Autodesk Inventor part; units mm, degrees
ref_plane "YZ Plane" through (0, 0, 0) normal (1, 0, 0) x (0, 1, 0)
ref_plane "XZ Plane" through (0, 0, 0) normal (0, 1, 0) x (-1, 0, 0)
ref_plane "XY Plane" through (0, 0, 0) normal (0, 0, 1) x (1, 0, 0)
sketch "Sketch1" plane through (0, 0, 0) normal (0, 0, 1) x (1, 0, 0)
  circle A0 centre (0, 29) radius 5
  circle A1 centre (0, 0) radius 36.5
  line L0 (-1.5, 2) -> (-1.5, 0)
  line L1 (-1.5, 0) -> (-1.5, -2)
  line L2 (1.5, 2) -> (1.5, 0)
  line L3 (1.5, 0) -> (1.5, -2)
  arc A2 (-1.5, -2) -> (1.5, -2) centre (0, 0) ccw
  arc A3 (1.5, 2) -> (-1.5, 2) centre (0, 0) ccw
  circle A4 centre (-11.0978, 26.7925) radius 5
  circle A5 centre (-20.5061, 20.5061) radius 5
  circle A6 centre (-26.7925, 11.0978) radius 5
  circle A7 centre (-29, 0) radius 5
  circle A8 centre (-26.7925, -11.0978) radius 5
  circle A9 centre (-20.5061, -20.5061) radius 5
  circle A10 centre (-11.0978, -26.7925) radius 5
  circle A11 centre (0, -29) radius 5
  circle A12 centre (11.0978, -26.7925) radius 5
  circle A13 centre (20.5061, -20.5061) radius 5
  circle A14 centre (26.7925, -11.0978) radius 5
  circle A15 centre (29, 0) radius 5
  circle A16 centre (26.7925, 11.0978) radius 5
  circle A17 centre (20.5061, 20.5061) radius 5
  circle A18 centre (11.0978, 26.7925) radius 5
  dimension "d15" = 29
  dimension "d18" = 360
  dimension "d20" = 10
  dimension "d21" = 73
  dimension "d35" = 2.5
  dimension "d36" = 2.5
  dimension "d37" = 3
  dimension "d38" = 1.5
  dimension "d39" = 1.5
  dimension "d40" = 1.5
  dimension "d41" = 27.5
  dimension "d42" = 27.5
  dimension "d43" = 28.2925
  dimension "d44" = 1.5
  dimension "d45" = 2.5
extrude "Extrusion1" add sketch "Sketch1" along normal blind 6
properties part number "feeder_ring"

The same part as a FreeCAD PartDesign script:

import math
import FreeCAD as App
import Part
import Sketcher

V = App.Vector
Q = App.Units.Quantity

doc = App.newDocument("Part")
body = doc.addObject("PartDesign::Body", "Body")

sketch1 = doc.addObject("Sketcher::SketchObject", "Sketch")
body.addObject(sketch1)
sketch1.AttachmentSupport = (doc.XY_Plane, [""])
sketch1.MapMode = "FlatFace"
sketch1.addGeometry([
    Part.Circle(V(0, 0, 0), V(0, 0, 1), 36.5),
    Part.Circle(V(-20.5, -20.5, 0), V(0, 0, 1), 5),
    Part.Circle(V(-11.1, -26.8, 0), V(0, 0, 1), 5),
    Part.Circle(V(-26.8, -11.1, 0), V(0, 0, 1), 5),
    Part.Circle(V(0, -29, 0), V(0, 0, 1), 5),
    Part.Circle(V(11.1, -26.8, 0), V(0, 0, 1), 5),
    Part.Circle(V(20.5, -20.5, 0), V(0, 0, 1), 5),
    Part.Circle(V(26.8, -11.1, 0), V(0, 0, 1), 5),
    Part.Circle(V(-29, 0, 0), V(0, 0, 1), 5),
    Part.Circle(V(-26.8, 11.1, 0), V(0, 0, 1), 5),
    Part.Circle(V(-20.5, 20.5, 0), V(0, 0, 1), 5),
    Part.Circle(V(-11.1, 26.8, 0), V(0, 0, 1), 5),
    Part.LineSegment(V(-1.5, -2, 0), V(-1.5, 2, 0)),
    Part.ArcOfCircle(Part.Circle(V(0, 0, 0), V(0, 0, 1), 2.5), math.radians(53), math.radians(127)),
    Part.LineSegment(V(1.5, 2, 0), V(1.5, -2, 0)),
    Part.ArcOfCircle(Part.Circle(V(0, 0, 0), V(0, 0, 1), 2.5), math.radians(-127), math.radians(-53)),
    Part.Circle(V(29, 0, 0), V(0, 0, 1), 5),
    Part.Circle(V(26.8, 11.1, 0), V(0, 0, 1), 5),
    Part.Circle(V(11.1, 26.8, 0), V(0, 0, 1), 5),
    Part.Circle(V(0, 29, 0), V(0, 0, 1), 5),
    Part.Circle(V(20.5, 20.5, 0), V(0, 0, 1), 5),
], False)
sketch1.addConstraint([
    Sketcher.Constraint("Coincident", 12, 2, 13, 2),
    Sketcher.Constraint("Coincident", 13, 1, 14, 1),
    Sketcher.Constraint("Coincident", 14, 2, 15, 2),
    Sketcher.Constraint("Coincident", 15, 1, 12, 1),
    Sketcher.Constraint("Vertical", 12),
    Sketcher.Constraint("Vertical", 14),
    Sketcher.Constraint("Coincident", 0, 3, -1, 1),
    Sketcher.Constraint("Coincident", 13, 3, -1, 1),
    Sketcher.Constraint("Coincident", 15, 3, -1, 1),
    Sketcher.Constraint("Equal", 1, 2),
    Sketcher.Constraint("Equal", 2, 3),
    Sketcher.Constraint("Equal", 3, 4),
    Sketcher.Constraint("Equal", 4, 5),
    Sketcher.Constraint("Equal", 5, 6),
    Sketcher.Constraint("Equal", 6, 7),
    Sketcher.Constraint("Equal", 7, 8),
    Sketcher.Constraint("Equal", 8, 9),
    Sketcher.Constraint("Equal", 9, 10),
    Sketcher.Constraint("Equal", 10, 11),
    Sketcher.Constraint("Equal", 13, 15),
    Sketcher.Constraint("Equal", 11, 16),
    Sketcher.Constraint("Equal", 16, 17),
    Sketcher.Constraint("Equal", 17, 18),
    Sketcher.Constraint("Equal", 18, 19),
    Sketcher.Constraint("Equal", 19, 20),
    Sketcher.Constraint("Symmetric", 7, 3, 9, 3, -1, 1),
    Sketcher.Constraint("Symmetric", 6, 3, 10, 3, -1, 1),
    Sketcher.Constraint("Symmetric", 5, 3, 11, 3, -1, 1),
    Sketcher.Constraint("Symmetric", 8, 3, 16, 3, -1, 1),
    Sketcher.Constraint("Symmetric", 3, 3, 17, 3, -1, 1),
    Sketcher.Constraint("Symmetric", 2, 3, 18, 3, -1, 1),
    Sketcher.Constraint("Symmetric", 4, 3, 19, 3, -1, 1),
    Sketcher.Constraint("Symmetric", 1, 3, 20, 3, -1, 1),
    Sketcher.Constraint("Symmetric", 2, 3, 5, 3, -2),
    Sketcher.Constraint("Symmetric", 1, 3, 6, 3, -2),
    Sketcher.Constraint("Symmetric", 3, 3, 7, 3, -2),
    Sketcher.Constraint("PointOnObject", 4, 3, -2),
    Sketcher.Constraint("PointOnObject", 8, 3, -1),
    Sketcher.Constraint("Horizontal", 12, 2, 13, 1),
    Sketcher.Constraint("Diameter", 0, Q("73 mm")),
    Sketcher.Constraint("Diameter", 1, Q("10 mm")),
    Sketcher.Constraint("Radius", 13, Q("2.5 mm")),
    Sketcher.Constraint("DistanceY", 4, 3, -1, 1, Q("29 mm")),
    Sketcher.Constraint("DistanceX", 8, 3, -1, 1, Q("29 mm")),
    Sketcher.Constraint("DistanceX", 12, 2, 13, 1, Q("3 mm")),
    Sketcher.Constraint("DistanceX", 1, 3, -1, 1, Q("20.506 mm")),
    Sketcher.Constraint("DistanceY", 1, 3, -1, 1, Q("20.506 mm")),
    Sketcher.Constraint("DistanceX", 1, 3, 5, 3, Q("31.604 mm")),
    Sketcher.Constraint("DistanceY", 1, 3, 9, 3, Q("31.604 mm")),
    Sketcher.Constraint("DistanceY", 2, 3, -1, 1, Q("26.7925 mm")),
    Sketcher.Constraint("DistanceX", 3, 3, -1, 1, Q("26.7925 mm")),
])
pad1 = doc.addObject("PartDesign::Pad", "Pad")
body.addObject(pad1)
pad1.Profile = sketch1
pad1.Length = 6

doc.recompute()
